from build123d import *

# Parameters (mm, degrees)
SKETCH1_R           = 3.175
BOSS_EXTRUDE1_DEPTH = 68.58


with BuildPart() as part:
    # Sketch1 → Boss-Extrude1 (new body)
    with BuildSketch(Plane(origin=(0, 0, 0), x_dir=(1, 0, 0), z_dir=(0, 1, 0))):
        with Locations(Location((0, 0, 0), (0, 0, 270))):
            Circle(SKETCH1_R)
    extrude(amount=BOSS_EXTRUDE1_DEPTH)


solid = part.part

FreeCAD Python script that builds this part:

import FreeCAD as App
import Part
import Sketcher
from FreeCAD import Vector
Q = App.Units.Quantity

doc = App.newDocument("Part")
body = doc.addObject("PartDesign::Body", "Body")

sketch1 = doc.addObject("Sketcher::SketchObject", "Sketch")
body.addObject(sketch1)
sketch1.AttachmentSupport = (doc.XZ_Plane, [""])
sketch1.MapMode = "FlatFace"
sketch1.addGeometry(Part.Circle(Vector(0, 0, 0), Vector(0, 0, 1), 3.175), False)
sketch1.addConstraint([
    Sketcher.Constraint("Coincident", 0, 3, -1, 1),
    Sketcher.Constraint("Diameter", 0, Q("0.25 in")),
])
pad1 = doc.addObject("PartDesign::Pad", "Pad")
body.addObject(pad1)
pad1.Profile = sketch1
pad1.Length = Q("2.7 in")
pad1.Reversed = True

doc.recompute()
